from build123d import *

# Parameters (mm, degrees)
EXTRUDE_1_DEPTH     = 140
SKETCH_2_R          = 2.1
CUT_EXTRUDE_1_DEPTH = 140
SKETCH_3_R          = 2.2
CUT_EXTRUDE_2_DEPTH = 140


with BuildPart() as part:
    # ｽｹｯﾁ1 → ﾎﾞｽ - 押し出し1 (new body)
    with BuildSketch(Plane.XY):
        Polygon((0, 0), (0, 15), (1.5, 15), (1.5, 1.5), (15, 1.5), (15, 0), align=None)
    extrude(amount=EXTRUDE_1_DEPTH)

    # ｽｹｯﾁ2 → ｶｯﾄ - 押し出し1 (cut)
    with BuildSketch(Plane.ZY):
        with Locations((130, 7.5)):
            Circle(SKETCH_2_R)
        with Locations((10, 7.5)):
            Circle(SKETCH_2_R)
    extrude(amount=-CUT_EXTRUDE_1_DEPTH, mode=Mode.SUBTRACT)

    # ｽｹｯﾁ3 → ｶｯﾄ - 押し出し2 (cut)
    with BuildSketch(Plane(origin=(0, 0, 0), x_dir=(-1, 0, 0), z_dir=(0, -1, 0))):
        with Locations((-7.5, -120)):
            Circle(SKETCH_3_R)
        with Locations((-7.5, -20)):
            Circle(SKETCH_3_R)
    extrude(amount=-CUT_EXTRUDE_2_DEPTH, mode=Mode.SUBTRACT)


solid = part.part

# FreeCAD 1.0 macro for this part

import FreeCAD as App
import Part
import Sketcher
Q = App.Units.Quantity

doc = App.newDocument("Part")
params = doc.addObject("Spreadsheet::Sheet", "Params")
for row, (alias, value) in enumerate([
    ("sketch1_width", "15 mm"),
    ("sketch1_width2", "13.5 mm"),
    ("pad1_length", "140 mm"),
    ("sketch2_diameter", "4.2 mm"),
    ("pocket1_length", "140 mm"),
    ("sketch3_diameter", "4.4 mm"),
    ("pocket2_length", "140 mm"),
], start=1):
    params.set(f"A{row}", alias)
    params.set(f"B{row}", "=" + value)
    params.setAlias(f"B{row}", alias)

body = doc.addObject("PartDesign::Body", "Body")

# Sketch on XY plane
sketch1 = body.newObject("Sketcher::SketchObject", "Sketch")
sketch1.AttachmentSupport = (doc.getObject("XY_Plane"), [""])
sketch1.MapMode = "FlatFace"
sketch1.addGeometry([
    Part.LineSegment(App.Vector(0, 15, 0), App.Vector(0, 0, 0)),  # 0
    Part.LineSegment(App.Vector(0, 0, 0), App.Vector(15, 0, 0)),  # 1
    Part.LineSegment(App.Vector(15, 0, 0), App.Vector(15, 1.5, 0)),  # 2
    Part.LineSegment(App.Vector(15, 1.5, 0), App.Vector(1.5, 1.5, 0)),  # 3
    Part.LineSegment(App.Vector(1.5, 1.5, 0), App.Vector(1.5, 15, 0)),  # 4
    Part.LineSegment(App.Vector(1.5, 15, 0), App.Vector(0, 15, 0)),  # 5
], False)
sketch1.addConstraint([
    Sketcher.Constraint("Coincident", 0, 2, 1, 1),
    Sketcher.Constraint("Coincident", 1, 2, 2, 1),
    Sketcher.Constraint("Coincident", 2, 2, 3, 1),
    Sketcher.Constraint("Coincident", 3, 2, 4, 1),
    Sketcher.Constraint("Coincident", 4, 2, 5, 1),
    Sketcher.Constraint("Coincident", 5, 2, 0, 1),
    Sketcher.Constraint("Vertical", 0),
    Sketcher.Constraint("Horizontal", 1),
    Sketcher.Constraint("Vertical", 2),
    Sketcher.Constraint("Horizontal", 3),
    Sketcher.Constraint("Vertical", 4),
    Sketcher.Constraint("Horizontal", 5),
    Sketcher.Constraint("Coincident", 0, 2, -1, 1),
    Sketcher.Constraint("Equal", 1, 0),
    Sketcher.Constraint("Equal", 5, 2),
    Sketcher.Constraint("DistanceX", 1, 1, 1, 2, Q("15 mm")),
    Sketcher.Constraint("DistanceX", 3, 2, 3, 1, Q("13.5 mm")),
])
sketch1.setExpression("Constraints[15]", "Params.sketch1_width")
sketch1.setExpression("Constraints[16]", "Params.sketch1_width2")
pad1 = body.newObject("PartDesign::Pad", "Pad")
pad1.Profile = sketch1
pad1.setExpression("Length", "Params.pad1_length")

# Sketch on YZ plane
sketch2 = body.newObject("Sketcher::SketchObject", "Sketch001")
sketch2.AttachmentSupport = (doc.getObject("YZ_Plane"), [""])
sketch2.MapMode = "FlatFace"
sketch2.addGeometry([
    Part.Circle(App.Vector(7.5, 130, 0), App.Vector(0, 0, 1), 2.1),
    Part.Circle(App.Vector(7.5, 10, 0), App.Vector(0, 0, 1), 2.1),
], False)
sketch2.addConstraint([
    Sketcher.Constraint("Equal", 0, 1),
    Sketcher.Constraint("Vertical", 0, 3, 1, 3),
    Sketcher.Constraint("Diameter", 0, Q("4.2 mm")),
    Sketcher.Constraint("DistanceY", -1, 1, 0, 3, Q("130 mm")),
    Sketcher.Constraint("DistanceY", -1, 1, 1, 3, Q("10 mm")),
    Sketcher.Constraint("DistanceX", -1, 1, 0, 3, Q("7.5 mm")),
])
sketch2.setExpression("Constraints[2]", "Params.sketch2_diameter")
pocket1 = body.newObject("PartDesign::Pocket", "Pocket")
pocket1.Profile = sketch2
pocket1.setExpression("Length", "Params.pocket1_length")
pocket1.Reversed = True

# Sketch on XZ plane
sketch3 = body.newObject("Sketcher::SketchObject", "Sketch002")
sketch3.AttachmentSupport = (doc.getObject("XZ_Plane"), [""])
sketch3.MapMode = "FlatFace"
sketch3.addGeometry([
    Part.Circle(App.Vector(7.5, 120, 0), App.Vector(0, 0, 1), 2.2),
    Part.Circle(App.Vector(7.5, 20, 0), App.Vector(0, 0, 1), 2.2),
], False)
sketch3.addConstraint([
    Sketcher.Constraint("Equal", 0, 1),
    Sketcher.Constraint("Vertical", 0, 3, 1, 3),
    Sketcher.Constraint("Diameter", 0, Q("4.4 mm")),
    Sketcher.Constraint("DistanceY", -1, 1, 0, 3, Q("120 mm")),
    Sketcher.Constraint("DistanceY", -1, 1, 1, 3, Q("20 mm")),
    Sketcher.Constraint("DistanceX", -1, 1, 0, 3, Q("7.5 mm")),
])
sketch3.setExpression("Constraints[2]", "Params.sketch3_diameter")
pocket2 = body.newObject("PartDesign::Pocket", "Pocket001")
pocket2.Profile = sketch3
pocket2.setExpression("Length", "Params.pocket2_length")

doc.recompute()
